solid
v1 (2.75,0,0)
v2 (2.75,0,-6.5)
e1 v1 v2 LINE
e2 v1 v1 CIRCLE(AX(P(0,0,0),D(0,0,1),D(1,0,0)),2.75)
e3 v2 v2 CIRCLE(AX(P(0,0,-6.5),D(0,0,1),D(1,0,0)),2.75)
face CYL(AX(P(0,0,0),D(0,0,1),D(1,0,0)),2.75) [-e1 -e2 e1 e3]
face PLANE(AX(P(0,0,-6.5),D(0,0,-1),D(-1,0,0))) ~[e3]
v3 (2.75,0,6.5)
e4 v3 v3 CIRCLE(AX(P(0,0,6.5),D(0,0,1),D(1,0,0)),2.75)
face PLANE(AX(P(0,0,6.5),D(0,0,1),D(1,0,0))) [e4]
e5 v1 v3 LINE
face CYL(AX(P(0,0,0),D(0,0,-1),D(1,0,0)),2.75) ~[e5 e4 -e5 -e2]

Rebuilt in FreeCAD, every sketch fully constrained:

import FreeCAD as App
import Part
import Sketcher

doc = App.newDocument("Part")
body = doc.addObject("PartDesign::Body", "Body")

# Sketch on XY plane
sketch1 = body.newObject("Sketcher::SketchObject", "Sketch")
sketch1.AttachmentSupport = (doc.getObject("XY_Plane"), [""])
sketch1.MapMode = "FlatFace"
sketch1.addGeometry(Part.Circle(App.Vector(0, 0, 0), App.Vector(0, 0, 1), 2.8), False)
sketch1.addConstraint(Sketcher.Constraint("Coincident", 0, 3, -1, 1))
sketch1.addConstraint(Sketcher.Constraint("Diameter", 0, 5.5))
pad1 = body.newObject("PartDesign::Pad", "Pad")
pad1.Profile = sketch1
pad1.Length = 6.5
doc.recompute()

mirrored = body.newObject("PartDesign::Mirrored", "Mirrored")
mirrored.TransformMode = "Transform body"
mirrored.MirrorPlane = (doc.getObject("XY_Plane"), [""])
body.Tip = mirrored

doc.recompute()
